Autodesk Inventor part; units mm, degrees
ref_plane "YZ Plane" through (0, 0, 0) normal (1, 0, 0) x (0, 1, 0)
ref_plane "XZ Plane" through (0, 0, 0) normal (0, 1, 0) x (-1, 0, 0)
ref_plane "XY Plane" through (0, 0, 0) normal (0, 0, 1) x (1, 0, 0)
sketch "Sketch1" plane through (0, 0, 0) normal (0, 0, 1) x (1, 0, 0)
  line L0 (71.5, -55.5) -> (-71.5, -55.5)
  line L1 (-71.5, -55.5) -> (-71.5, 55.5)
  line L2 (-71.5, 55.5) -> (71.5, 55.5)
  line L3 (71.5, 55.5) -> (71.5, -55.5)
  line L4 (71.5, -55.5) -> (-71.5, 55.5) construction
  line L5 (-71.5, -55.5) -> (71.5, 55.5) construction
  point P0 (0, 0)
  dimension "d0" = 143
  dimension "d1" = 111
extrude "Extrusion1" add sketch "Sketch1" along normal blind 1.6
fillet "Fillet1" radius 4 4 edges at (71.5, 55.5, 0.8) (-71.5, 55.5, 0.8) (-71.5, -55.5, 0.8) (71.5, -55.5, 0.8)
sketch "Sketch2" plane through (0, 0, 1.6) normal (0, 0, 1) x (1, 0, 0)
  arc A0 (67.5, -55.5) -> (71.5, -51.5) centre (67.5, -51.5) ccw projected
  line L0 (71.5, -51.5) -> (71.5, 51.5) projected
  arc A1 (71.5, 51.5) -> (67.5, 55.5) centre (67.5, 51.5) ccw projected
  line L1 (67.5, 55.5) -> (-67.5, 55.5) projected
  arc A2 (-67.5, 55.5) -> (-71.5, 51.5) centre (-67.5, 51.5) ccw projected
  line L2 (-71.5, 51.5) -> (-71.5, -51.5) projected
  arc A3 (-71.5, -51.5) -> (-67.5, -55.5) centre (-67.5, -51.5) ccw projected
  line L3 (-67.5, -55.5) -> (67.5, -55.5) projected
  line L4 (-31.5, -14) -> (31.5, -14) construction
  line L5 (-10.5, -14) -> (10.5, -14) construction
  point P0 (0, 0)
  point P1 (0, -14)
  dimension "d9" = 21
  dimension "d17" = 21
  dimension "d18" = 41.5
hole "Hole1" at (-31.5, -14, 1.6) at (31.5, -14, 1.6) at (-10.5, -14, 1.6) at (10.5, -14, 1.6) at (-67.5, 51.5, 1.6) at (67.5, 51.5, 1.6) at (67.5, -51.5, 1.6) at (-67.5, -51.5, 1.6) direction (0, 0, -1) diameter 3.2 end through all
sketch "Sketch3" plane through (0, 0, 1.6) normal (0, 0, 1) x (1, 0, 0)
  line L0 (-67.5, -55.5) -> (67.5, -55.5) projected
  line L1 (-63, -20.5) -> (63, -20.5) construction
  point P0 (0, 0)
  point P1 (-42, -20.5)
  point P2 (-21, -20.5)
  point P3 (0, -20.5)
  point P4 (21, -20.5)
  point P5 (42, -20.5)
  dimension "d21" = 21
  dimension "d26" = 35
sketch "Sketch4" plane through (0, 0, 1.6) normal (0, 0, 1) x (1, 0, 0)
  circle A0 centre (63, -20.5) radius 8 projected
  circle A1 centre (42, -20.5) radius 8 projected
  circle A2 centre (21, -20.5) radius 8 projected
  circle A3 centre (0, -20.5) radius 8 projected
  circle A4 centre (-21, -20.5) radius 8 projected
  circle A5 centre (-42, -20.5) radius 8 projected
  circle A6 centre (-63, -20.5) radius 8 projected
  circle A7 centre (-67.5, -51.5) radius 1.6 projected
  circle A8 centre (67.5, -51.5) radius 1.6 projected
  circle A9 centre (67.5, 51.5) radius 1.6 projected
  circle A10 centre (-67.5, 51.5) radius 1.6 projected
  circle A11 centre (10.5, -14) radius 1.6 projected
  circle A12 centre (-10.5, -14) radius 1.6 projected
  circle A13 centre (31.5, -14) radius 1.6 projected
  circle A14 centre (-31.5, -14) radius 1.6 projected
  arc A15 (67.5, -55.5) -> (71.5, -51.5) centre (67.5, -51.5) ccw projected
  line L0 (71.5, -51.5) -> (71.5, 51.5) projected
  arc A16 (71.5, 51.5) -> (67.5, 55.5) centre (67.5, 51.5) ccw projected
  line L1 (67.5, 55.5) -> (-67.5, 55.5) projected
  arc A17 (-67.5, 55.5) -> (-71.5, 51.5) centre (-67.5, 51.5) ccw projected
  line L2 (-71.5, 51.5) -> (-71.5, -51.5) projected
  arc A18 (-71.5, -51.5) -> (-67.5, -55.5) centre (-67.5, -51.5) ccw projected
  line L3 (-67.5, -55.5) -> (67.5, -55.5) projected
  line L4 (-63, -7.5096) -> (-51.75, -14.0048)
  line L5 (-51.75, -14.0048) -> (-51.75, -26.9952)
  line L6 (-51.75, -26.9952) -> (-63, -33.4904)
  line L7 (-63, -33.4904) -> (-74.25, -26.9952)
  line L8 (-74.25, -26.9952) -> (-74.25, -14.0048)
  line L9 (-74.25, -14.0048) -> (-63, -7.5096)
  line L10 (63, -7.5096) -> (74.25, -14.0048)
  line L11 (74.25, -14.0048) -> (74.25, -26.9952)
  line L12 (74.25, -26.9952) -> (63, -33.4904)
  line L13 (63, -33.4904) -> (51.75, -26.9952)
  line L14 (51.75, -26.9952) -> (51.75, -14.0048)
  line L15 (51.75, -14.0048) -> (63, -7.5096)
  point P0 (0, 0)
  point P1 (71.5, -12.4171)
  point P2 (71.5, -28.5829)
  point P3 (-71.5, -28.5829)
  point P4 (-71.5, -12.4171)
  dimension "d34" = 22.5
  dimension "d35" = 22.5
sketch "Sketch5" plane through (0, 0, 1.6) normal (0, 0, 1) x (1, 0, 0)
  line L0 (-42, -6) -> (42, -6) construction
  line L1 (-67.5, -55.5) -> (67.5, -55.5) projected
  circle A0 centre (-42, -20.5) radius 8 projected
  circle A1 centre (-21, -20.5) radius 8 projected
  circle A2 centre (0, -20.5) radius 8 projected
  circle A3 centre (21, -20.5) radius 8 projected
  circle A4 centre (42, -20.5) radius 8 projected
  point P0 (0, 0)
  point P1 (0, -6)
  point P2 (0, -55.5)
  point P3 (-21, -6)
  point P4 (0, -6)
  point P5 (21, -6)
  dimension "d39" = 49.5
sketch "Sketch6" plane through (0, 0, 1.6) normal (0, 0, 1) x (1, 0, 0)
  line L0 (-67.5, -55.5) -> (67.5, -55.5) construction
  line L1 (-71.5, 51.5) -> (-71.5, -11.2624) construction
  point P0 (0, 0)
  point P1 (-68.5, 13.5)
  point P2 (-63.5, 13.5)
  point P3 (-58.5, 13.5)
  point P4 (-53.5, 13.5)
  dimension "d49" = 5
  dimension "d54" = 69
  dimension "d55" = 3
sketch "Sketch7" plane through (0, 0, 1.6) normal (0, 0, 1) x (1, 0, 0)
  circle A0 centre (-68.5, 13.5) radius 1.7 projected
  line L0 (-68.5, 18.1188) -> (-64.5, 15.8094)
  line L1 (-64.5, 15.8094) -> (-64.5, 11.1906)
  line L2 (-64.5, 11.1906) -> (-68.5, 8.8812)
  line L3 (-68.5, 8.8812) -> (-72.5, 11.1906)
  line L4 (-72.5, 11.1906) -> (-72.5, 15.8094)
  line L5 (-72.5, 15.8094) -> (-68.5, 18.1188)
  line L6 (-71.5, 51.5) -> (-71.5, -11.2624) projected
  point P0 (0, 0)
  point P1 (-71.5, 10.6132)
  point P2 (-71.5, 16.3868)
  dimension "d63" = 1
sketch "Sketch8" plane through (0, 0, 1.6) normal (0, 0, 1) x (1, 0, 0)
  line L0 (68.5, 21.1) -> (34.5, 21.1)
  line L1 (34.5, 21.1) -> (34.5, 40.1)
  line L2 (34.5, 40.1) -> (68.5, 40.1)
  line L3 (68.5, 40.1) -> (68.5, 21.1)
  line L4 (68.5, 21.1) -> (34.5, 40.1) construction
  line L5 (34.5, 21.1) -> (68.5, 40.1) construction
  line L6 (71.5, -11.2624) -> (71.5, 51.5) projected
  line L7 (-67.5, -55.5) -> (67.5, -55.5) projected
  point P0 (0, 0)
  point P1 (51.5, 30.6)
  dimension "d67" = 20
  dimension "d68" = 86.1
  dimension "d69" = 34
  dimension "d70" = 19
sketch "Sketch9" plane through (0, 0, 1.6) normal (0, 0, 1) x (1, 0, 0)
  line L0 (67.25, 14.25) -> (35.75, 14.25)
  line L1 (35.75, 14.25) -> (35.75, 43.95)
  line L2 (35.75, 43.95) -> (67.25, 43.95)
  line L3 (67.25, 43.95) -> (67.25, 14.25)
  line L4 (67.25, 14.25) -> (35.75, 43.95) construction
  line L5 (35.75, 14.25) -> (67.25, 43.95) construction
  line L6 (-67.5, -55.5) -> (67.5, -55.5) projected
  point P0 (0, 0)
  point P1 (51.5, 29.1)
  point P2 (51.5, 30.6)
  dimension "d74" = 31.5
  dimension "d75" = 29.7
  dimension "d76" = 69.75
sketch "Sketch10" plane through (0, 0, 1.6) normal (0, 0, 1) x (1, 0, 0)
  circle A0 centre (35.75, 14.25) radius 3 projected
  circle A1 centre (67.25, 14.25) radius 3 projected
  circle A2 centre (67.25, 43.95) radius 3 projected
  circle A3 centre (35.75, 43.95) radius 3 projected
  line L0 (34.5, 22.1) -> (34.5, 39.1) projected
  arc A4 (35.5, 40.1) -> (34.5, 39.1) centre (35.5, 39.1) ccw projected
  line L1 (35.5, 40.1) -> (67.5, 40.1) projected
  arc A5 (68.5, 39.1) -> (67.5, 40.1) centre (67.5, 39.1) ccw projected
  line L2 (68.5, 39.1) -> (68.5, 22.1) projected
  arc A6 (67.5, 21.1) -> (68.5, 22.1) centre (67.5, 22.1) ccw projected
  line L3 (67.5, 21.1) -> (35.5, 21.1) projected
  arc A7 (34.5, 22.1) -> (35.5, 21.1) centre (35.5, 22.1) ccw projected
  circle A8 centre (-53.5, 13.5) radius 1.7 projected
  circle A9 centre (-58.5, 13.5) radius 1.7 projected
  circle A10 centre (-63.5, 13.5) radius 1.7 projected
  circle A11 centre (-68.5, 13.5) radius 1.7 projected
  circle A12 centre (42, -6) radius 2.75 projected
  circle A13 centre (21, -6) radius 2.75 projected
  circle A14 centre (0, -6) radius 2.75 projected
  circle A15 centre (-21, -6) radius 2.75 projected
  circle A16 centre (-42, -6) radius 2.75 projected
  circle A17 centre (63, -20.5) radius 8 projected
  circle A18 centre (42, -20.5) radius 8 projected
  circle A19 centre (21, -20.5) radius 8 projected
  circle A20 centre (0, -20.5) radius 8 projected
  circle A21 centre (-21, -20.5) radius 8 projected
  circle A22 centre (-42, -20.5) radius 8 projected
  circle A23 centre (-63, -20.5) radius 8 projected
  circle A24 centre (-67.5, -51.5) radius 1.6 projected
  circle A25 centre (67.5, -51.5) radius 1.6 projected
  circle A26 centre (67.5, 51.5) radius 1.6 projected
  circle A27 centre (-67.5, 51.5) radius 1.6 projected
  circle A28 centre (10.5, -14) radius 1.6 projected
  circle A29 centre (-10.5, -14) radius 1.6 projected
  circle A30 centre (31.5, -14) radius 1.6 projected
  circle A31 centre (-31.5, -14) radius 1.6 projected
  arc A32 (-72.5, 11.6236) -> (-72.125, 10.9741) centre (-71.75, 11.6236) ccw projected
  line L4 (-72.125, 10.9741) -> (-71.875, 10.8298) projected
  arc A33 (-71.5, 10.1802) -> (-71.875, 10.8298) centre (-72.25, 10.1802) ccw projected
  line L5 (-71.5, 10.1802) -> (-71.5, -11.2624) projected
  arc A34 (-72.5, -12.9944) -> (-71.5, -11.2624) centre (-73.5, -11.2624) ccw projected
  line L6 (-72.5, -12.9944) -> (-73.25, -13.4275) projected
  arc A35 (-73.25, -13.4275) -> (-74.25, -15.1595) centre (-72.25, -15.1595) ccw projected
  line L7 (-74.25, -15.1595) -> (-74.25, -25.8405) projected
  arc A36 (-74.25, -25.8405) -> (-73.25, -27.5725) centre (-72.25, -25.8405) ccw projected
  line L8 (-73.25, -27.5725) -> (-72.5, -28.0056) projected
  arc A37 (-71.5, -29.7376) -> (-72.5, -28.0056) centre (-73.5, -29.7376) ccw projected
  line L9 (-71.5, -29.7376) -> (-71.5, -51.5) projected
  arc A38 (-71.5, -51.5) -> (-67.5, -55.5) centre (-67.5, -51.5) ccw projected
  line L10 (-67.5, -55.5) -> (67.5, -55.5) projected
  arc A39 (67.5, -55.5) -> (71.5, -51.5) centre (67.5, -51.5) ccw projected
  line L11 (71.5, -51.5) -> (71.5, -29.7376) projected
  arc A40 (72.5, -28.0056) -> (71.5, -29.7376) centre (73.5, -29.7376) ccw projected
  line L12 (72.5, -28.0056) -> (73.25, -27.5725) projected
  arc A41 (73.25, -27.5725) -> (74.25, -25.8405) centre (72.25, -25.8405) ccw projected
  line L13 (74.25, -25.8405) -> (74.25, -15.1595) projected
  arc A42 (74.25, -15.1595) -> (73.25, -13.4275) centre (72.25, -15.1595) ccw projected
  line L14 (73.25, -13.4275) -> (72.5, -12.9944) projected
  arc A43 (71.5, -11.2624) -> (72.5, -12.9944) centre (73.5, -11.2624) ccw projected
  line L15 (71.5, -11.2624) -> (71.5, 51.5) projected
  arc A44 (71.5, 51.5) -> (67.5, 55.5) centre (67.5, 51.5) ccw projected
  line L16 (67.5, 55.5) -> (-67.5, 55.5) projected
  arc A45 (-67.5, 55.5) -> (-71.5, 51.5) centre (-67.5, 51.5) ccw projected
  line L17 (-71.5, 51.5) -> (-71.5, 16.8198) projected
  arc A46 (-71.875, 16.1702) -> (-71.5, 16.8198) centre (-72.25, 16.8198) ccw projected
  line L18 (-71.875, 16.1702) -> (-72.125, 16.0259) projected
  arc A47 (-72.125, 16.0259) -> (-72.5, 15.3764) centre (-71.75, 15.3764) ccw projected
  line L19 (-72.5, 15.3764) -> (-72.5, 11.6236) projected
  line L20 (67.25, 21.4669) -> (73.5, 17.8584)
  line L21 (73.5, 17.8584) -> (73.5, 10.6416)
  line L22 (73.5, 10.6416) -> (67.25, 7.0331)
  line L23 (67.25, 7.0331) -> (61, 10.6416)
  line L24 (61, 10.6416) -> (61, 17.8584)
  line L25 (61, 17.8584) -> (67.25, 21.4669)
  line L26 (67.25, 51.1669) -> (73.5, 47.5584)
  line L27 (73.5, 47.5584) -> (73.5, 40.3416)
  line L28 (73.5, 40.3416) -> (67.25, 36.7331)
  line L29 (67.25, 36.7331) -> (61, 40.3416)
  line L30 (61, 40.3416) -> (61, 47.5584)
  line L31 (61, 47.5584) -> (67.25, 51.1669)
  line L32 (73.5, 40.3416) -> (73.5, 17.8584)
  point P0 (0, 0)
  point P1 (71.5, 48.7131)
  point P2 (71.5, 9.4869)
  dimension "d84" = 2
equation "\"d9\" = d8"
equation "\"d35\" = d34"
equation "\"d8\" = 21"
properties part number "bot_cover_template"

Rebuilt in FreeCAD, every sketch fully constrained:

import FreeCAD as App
import Part
import Sketcher
from FreeCAD import Vector


def edges_at(feature, points):
    """Names of the edges that pass closest to the given points."""
    edges = feature.Shape.Edges
    near = lambda p: min(range(len(edges)), key=lambda i: edges[i].distToShape(Part.Vertex(*p))[0])
    return sorted({f"Edge{near(p) + 1}" for p in points})


def add_polygon(sketch, points):
    """Adds a closed chain of lines whose ends are joined by coincident constraints."""
    first, n = sketch.GeometryCount, len(points)
    for a, b in zip(points, points[1:] + points[:1]):
        sketch.addGeometry(Part.LineSegment(App.Vector(*a, 0), App.Vector(*b, 0)), False)
    for i in range(n):
        sketch.addConstraint(Sketcher.Constraint("Coincident", first + i, 2, first + (i + 1) % n, 1))

doc = App.newDocument("Part")
body = doc.addObject("PartDesign::Body", "Body")

# Sketch on XY plane
sketch1 = body.newObject("Sketcher::SketchObject", "Sketch")
sketch1.AttachmentSupport = (doc.getObject("XY_Plane"), [""])
sketch1.MapMode = "FlatFace"
add_polygon(sketch1, [(-72, -56), (72, -56), (72, 56), (-72, 56)])  # lines 0-3
sketch1.addConstraint(Sketcher.Constraint("Horizontal", 0))
sketch1.addConstraint(Sketcher.Constraint("Vertical", 1))
sketch1.addConstraint(Sketcher.Constraint("Horizontal", 2))
sketch1.addConstraint(Sketcher.Constraint("Vertical", 3))
sketch1.addConstraint(Sketcher.Constraint("Symmetric", 0, 2, 2, 2, -1, 1))
sketch1.addConstraint(Sketcher.Constraint("DistanceX", 0, 1, 0, 2, 143.0))
sketch1.addConstraint(Sketcher.Constraint("DistanceY", 1, 1, 1, 2, 111.0))
pad1 = body.newObject("PartDesign::Pad", "Pad")
pad1.Profile = sketch1
pad1.Length = 1.6
doc.recompute()

fillet = body.newObject("PartDesign::Fillet", "Fillet")
fillet.Base = (pad1, edges_at(pad1, [
    (71.5, 55.5, 0.8),
    (-71.5, 55.5, 0.8),
    (-71.5, -55.5, 0.8),
    (71.5, -55.5, 0.8),
]))
fillet.Radius = 4

# Sketch on XY plane
sketch2 = body.newObject("Sketcher::SketchObject", "Sketch001")
sketch2.AttachmentSupport = (doc.getObject("XY_Plane"), [""])
sketch2.MapMode = "FlatFace"
sketch2.AttachmentOffset = App.Placement(Vector(0, 0, 1.6), App.Rotation())
sketch2.addGeometry(Part.Circle(Vector(-31.5, -14, 0), Vector(0, 0, 1), 1.6), False)
sketch2.addGeometry(Part.Circle(Vector(31.5, -14, 0), Vector(0, 0, 1), 1.6), False)
sketch2.addGeometry(Part.Circle(Vector(-10.5, -14, 0), Vector(0, 0, 1), 1.6), False)
sketch2.addGeometry(Part.Circle(Vector(10.5, -14, 0), Vector(0, 0, 1), 1.6), False)
sketch2.addGeometry(Part.Circle(Vector(-67.5, 51.5, 0), Vector(0, 0, 1), 1.6), False)
sketch2.addGeometry(Part.Circle(Vector(67.5, 51.5, 0), Vector(0, 0, 1), 1.6), False)
sketch2.addGeometry(Part.Circle(Vector(67.5, -51.5, 0), Vector(0, 0, 1), 1.6), False)
sketch2.addGeometry(Part.Circle(Vector(-67.5, -51.5, 0), Vector(0, 0, 1), 1.6), False)
sketch2.addConstraint(Sketcher.Constraint("Equal", 0, 1))
sketch2.addConstraint(Sketcher.Constraint("Equal", 1, 2))
sketch2.addConstraint(Sketcher.Constraint("Equal", 2, 3))
sketch2.addConstraint(Sketcher.Constraint("Equal", 3, 4))
sketch2.addConstraint(Sketcher.Constraint("Equal", 4, 5))
sketch2.addConstraint(Sketcher.Constraint("Equal", 5, 6))
sketch2.addConstraint(Sketcher.Constraint("Equal", 6, 7))
sketch2.addConstraint(Sketcher.Constraint("Symmetric", 4, 3, 6, 3, -1, 1))
sketch2.addConstraint(Sketcher.Constraint("Symmetric", 5, 3, 7, 3, -1, 1))
sketch2.addConstraint(Sketcher.Constraint("Symmetric", 0, 3, 1, 3, -2))
sketch2.addConstraint(Sketcher.Constraint("Symmetric", 2, 3, 3, 3, -2))
sketch2.addConstraint(Sketcher.Constraint("Symmetric", 4, 3, 5, 3, -2))
sketch2.addConstraint(Sketcher.Constraint("Horizontal", 1, 3, 2, 3))
sketch2.addConstraint(Sketcher.Constraint("Diameter", 0, 3.2))
sketch2.addConstraint(Sketcher.Constraint("DistanceY", 0, 3, -1, 1, 14.0))
sketch2.addConstraint(Sketcher.Constraint("DistanceX", 0, 3, 1, 3, 63.0))
sketch2.addConstraint(Sketcher.Constraint("DistanceX", 0, 3, 2, 3, 21.0))
sketch2.addConstraint(Sketcher.Constraint("DistanceX", 4, 3, 0, 3, 36.0))
sketch2.addConstraint(Sketcher.Constraint("DistanceY", 6, 3, 5, 3, 103.0))
doc.recompute()
hole = body.newObject("PartDesign::Hole", "Hole")
hole.Profile = sketch2
hole.ThreadType = "None"
hole.Diameter = 3.2
hole.DepthType = "ThroughAll"

doc.recompute()
